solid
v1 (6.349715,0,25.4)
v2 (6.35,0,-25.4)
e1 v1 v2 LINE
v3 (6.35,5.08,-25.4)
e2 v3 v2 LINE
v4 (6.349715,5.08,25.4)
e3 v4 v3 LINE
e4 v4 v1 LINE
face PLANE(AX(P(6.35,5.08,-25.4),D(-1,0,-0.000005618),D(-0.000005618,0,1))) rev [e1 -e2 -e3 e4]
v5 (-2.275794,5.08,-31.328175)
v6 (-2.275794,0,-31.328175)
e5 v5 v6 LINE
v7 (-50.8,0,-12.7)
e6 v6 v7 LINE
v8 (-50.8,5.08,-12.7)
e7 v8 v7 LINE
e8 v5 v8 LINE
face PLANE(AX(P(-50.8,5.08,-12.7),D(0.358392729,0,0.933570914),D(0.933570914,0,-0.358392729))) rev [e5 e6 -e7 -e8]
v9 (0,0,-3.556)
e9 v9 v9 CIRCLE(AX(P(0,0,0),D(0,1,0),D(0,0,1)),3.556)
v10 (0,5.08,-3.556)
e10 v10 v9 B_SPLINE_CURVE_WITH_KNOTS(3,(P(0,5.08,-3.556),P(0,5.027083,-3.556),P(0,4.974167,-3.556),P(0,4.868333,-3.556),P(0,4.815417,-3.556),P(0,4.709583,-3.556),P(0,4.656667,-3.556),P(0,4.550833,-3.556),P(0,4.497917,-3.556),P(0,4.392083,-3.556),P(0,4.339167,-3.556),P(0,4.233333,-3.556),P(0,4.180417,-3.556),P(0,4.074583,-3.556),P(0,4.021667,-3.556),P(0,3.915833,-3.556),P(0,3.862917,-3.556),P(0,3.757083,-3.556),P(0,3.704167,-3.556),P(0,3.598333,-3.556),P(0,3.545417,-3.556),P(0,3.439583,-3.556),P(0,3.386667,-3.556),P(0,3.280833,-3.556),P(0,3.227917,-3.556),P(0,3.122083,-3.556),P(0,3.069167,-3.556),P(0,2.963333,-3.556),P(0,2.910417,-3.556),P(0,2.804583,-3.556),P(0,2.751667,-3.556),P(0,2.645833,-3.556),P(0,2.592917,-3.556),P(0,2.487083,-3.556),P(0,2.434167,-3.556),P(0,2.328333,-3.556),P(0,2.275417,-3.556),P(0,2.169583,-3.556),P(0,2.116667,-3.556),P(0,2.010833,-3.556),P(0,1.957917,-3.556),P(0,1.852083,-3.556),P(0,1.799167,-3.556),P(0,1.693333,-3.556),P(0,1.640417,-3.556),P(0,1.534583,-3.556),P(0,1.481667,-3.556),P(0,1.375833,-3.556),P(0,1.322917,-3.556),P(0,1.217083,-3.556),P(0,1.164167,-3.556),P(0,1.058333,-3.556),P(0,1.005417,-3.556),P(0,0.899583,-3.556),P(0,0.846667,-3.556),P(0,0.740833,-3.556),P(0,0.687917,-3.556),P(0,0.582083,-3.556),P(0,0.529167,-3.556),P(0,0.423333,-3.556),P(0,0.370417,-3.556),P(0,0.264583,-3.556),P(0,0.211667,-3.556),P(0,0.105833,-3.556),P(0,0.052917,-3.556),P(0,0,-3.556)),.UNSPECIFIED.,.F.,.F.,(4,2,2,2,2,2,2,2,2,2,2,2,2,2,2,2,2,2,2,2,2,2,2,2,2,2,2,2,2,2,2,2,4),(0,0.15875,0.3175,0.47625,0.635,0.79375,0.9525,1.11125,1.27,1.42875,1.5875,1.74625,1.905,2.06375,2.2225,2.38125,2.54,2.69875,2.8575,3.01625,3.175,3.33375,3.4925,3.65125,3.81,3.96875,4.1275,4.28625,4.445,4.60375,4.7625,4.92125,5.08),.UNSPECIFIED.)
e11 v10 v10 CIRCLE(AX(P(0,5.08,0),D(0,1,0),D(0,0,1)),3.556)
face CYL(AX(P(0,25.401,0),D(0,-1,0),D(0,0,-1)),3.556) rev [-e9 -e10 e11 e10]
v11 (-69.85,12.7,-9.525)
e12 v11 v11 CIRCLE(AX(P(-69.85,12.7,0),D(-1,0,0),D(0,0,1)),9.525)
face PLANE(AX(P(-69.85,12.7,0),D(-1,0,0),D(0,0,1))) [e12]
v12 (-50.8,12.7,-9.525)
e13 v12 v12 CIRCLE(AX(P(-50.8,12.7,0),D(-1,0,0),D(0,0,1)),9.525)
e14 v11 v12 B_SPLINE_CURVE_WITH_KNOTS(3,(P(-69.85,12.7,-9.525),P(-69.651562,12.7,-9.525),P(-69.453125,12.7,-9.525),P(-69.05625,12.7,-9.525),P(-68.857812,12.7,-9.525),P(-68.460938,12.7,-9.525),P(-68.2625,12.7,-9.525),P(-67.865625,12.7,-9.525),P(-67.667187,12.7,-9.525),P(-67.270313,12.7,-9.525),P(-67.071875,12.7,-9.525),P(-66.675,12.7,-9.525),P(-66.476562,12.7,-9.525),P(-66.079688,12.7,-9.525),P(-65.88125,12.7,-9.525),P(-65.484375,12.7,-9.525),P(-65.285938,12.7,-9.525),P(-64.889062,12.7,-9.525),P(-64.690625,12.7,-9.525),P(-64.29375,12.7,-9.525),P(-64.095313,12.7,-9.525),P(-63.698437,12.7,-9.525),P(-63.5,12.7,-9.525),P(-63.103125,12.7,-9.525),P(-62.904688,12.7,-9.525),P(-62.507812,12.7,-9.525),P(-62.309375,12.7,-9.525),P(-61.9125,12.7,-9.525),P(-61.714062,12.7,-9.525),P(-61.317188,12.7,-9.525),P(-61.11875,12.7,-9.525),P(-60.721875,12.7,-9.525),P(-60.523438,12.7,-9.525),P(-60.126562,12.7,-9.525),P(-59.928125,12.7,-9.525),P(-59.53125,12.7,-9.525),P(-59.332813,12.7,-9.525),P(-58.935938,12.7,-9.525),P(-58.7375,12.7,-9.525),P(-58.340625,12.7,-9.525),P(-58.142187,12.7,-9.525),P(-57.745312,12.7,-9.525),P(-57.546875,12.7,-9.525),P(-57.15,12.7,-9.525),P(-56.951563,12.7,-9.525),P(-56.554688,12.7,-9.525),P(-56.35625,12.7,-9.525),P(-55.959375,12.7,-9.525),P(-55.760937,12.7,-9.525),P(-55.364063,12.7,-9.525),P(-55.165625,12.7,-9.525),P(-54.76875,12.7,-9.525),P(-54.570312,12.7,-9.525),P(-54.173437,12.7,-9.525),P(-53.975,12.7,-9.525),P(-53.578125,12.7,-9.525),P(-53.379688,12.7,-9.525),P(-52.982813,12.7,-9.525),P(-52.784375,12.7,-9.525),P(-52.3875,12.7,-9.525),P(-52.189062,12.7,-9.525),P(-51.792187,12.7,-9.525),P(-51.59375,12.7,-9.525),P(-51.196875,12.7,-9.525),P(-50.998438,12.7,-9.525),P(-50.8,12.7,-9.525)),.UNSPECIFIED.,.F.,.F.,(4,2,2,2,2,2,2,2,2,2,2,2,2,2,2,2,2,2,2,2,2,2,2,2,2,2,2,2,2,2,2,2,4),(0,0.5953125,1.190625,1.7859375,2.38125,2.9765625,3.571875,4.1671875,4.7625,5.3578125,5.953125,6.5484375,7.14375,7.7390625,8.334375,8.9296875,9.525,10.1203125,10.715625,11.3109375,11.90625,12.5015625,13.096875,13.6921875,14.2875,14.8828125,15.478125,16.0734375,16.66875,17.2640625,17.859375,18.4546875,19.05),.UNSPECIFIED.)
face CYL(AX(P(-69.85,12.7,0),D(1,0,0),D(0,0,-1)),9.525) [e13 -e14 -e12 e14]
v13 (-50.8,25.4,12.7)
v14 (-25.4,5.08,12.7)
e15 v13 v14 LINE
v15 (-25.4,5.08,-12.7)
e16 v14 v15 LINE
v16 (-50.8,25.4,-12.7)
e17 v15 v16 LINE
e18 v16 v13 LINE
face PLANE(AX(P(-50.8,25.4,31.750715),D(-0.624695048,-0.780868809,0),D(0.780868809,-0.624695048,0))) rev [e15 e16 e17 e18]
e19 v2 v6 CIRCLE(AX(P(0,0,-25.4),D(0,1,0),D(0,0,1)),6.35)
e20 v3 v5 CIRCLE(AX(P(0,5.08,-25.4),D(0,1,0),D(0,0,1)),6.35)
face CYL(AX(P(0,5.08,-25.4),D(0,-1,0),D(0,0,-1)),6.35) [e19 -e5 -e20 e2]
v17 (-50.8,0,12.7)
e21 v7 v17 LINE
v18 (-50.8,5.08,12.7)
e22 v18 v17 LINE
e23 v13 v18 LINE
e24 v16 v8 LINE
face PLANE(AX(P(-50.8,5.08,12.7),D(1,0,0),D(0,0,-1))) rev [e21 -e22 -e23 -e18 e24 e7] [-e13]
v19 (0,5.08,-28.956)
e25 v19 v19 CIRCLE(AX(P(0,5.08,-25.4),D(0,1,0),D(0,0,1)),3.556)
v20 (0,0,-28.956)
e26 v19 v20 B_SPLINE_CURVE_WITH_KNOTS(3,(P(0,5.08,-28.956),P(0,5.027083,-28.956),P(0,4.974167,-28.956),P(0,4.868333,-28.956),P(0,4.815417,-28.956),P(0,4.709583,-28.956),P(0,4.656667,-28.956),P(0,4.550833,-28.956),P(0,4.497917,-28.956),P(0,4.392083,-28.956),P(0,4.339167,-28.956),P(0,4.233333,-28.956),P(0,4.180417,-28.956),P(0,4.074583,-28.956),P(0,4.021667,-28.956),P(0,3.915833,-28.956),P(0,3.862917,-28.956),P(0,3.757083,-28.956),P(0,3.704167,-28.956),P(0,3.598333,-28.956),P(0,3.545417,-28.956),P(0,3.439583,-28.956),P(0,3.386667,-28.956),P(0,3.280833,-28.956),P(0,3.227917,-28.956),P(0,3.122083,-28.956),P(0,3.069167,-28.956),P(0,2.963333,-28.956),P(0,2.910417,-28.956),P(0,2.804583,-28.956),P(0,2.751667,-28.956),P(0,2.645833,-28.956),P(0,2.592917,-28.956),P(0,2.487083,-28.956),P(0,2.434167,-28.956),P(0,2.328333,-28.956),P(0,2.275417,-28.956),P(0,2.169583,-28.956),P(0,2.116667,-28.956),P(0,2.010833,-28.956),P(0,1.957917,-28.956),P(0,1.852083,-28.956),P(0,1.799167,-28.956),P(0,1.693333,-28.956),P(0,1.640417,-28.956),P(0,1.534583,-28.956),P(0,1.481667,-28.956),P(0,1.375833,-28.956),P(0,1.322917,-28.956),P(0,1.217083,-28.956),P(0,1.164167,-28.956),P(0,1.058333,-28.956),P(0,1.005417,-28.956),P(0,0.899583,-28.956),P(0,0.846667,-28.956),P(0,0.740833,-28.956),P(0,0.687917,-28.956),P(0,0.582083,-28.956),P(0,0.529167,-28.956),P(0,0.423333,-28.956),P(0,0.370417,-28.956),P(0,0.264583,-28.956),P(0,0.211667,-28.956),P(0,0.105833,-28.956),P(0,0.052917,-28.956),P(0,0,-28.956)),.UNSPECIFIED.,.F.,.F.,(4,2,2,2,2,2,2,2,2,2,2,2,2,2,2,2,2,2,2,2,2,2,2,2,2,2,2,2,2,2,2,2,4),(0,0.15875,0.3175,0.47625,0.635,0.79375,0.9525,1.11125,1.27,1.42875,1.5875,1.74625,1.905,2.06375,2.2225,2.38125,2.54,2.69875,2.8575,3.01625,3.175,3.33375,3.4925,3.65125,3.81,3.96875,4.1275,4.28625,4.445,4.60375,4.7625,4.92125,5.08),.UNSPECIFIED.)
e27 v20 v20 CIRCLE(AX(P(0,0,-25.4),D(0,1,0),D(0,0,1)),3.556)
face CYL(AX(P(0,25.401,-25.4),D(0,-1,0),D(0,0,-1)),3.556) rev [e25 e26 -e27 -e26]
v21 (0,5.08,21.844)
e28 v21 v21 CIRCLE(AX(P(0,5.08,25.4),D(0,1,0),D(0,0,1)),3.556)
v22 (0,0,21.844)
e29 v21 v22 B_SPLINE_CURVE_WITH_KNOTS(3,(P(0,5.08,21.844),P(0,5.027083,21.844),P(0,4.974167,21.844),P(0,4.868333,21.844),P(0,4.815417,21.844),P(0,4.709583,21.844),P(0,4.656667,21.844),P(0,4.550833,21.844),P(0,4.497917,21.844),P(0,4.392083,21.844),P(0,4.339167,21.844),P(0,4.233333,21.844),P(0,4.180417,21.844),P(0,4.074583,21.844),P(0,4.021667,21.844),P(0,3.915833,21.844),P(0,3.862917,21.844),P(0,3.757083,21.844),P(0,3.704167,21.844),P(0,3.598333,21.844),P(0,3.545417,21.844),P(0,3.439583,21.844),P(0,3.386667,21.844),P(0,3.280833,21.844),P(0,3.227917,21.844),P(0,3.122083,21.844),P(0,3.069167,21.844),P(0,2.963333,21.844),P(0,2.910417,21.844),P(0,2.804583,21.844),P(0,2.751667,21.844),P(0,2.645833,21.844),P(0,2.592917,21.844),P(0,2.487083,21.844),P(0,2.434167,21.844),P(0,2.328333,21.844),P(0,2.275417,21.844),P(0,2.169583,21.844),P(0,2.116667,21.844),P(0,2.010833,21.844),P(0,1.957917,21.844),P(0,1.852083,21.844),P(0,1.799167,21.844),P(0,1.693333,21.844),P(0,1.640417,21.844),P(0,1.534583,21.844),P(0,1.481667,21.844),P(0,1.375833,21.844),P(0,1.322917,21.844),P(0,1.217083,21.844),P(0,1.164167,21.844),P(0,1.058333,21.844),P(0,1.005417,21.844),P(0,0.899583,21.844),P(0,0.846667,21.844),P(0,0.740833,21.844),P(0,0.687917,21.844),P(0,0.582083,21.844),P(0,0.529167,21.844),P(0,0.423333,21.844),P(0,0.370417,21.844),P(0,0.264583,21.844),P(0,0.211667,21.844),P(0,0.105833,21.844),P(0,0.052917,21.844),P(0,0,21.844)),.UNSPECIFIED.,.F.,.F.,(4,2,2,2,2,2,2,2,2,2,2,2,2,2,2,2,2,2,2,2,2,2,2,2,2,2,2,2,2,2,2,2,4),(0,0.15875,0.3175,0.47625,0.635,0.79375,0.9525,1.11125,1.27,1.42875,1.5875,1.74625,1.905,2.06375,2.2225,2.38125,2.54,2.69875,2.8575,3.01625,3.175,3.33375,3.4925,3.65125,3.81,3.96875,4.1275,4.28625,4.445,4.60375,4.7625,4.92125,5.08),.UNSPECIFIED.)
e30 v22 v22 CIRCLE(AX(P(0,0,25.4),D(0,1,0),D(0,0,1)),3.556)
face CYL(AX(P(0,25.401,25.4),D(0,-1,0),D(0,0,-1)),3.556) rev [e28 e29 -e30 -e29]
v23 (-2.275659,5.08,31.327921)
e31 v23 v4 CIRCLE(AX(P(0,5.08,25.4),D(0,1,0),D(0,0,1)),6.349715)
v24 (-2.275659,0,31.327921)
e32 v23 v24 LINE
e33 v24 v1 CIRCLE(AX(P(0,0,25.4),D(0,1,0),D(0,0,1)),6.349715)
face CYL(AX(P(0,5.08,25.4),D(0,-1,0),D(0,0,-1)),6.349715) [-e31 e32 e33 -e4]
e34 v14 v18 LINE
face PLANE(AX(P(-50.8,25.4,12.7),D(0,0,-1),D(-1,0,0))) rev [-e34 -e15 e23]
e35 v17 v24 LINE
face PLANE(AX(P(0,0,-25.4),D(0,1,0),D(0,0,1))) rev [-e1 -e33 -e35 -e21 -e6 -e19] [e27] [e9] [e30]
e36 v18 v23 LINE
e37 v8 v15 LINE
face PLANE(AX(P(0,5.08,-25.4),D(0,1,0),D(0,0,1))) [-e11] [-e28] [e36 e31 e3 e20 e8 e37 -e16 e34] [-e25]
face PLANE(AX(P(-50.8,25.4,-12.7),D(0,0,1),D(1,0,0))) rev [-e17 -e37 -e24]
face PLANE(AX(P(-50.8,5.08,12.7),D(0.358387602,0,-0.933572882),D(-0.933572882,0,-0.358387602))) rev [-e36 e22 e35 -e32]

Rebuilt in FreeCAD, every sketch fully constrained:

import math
import FreeCAD as App
import Part
import Sketcher
from FreeCAD import Vector
Q = App.Units.Quantity

doc = App.newDocument("Part")
params = doc.addObject("Spreadsheet::Sheet", "Params")
for row, (alias, value) in enumerate([
    ("sketch1_width", "1 in"),
    ("pad1_length", "1 in"),
    ("sketch2_width", "1 in"),
    ("sketch2_height", "0.8 in"),
    ("pocket1_length", "1 in"),
    ("sketch3_height", "1 in"),
    ("sketch3_radius", "0.25 in"),
    ("sketch3_length", "2 in"),
    ("pad2_length", "0.2 in"),
    ("sketch4_diameter", "0.28 in"),
    ("pocket2_length", "0.2 in"),
    ("sketch5_diameter", "0.28 in"),
    ("pocket3_length", "0.2 in"),
    ("sketch6_diameter", "0.75 in"),
    ("pad3_length", "0.75 in"),
    ("sketch7_diameter", "0.28 in"),
], start=1):
    params.set(f"A{row}", alias)
    params.set(f"B{row}", "=" + value)
    params.setAlias(f"B{row}", alias)

body = doc.addObject("PartDesign::Body", "Body")

# Sketch on XZ plane
sketch1 = body.newObject("Sketcher::SketchObject", "Sketch")
sketch1.AttachmentSupport = (doc.getObject("XZ_Plane"), [""])
sketch1.MapMode = "FlatFace"
sketch1.addGeometry([
    Part.LineSegment(Vector(-50.8, -12.7, 0), Vector(-50.8, 12.7, 0)),
    Part.LineSegment(Vector(-50.8, 12.7, 0), Vector(-25.4, 12.7, 0)),
    Part.LineSegment(Vector(-25.4, 12.7, 0), Vector(-25.4, -12.7, 0)),
    Part.LineSegment(Vector(-25.4, -12.7, 0), Vector(-50.8, -12.7, 0)),
], False)
sketch1.addConstraint([
    Sketcher.Constraint("Coincident", 0, 2, 1, 1),
    Sketcher.Constraint("Coincident", 1, 2, 2, 1),
    Sketcher.Constraint("Coincident", 2, 2, 3, 1),
    Sketcher.Constraint("Coincident", 3, 2, 0, 1),
    Sketcher.Constraint("Vertical", 0),
    Sketcher.Constraint("Horizontal", 1),
    Sketcher.Constraint("Vertical", 2),
    Sketcher.Constraint("Horizontal", 3),
    Sketcher.Constraint("Equal", 3, 0),
    Sketcher.Constraint("DistanceX", 1, 1, 1, 2, Q("1 in")),
    Sketcher.Constraint("DistanceX", 0, 2, -1, 1, Q("2 in")),
    Sketcher.Constraint("DistanceY", -1, 1, 0, 2, Q("0.5 in")),
])
sketch1.setExpression("Constraints[9]", "Params.sketch1_width")
pad1 = body.newObject("PartDesign::Pad", "Pad")
pad1.Profile = sketch1
pad1.setExpression("Length", "Params.pad1_length")
pad1.Reversed = True

# Sketch on XY plane
sketch2 = body.newObject("Sketcher::SketchObject", "Sketch001")
sketch2.AttachmentSupport = (doc.getObject("XY_Plane"), [""])
sketch2.MapMode = "FlatFace"
sketch2.AttachmentOffset = App.Placement(Vector(0, 0, -0.5 * 25.4), App.Rotation())
sketch2.addGeometry([
    Part.LineSegment(Vector(-25.4, 5.08, 0), Vector(-50.8, 25.4, 0)),
    Part.LineSegment(Vector(-50.8, 25.4, 0), Vector(-25.4, 25.4, 0)),
    Part.LineSegment(Vector(-25.4, 25.4, 0), Vector(-25.4, 5.08, 0)),
], False)
sketch2.addConstraint([
    Sketcher.Constraint("Coincident", 0, 2, 1, 1),
    Sketcher.Constraint("Coincident", 1, 2, 2, 1),
    Sketcher.Constraint("Coincident", 2, 2, 0, 1),
    Sketcher.Constraint("Horizontal", 1),
    Sketcher.Constraint("Vertical", 2),
    Sketcher.Constraint("DistanceX", 1, 1, 1, 2, Q("1 in")),
    Sketcher.Constraint("DistanceY", 2, 2, 2, 1, Q("0.8 in")),
    Sketcher.Constraint("DistanceX", 0, 2, -1, 1, Q("2 in")),
    Sketcher.Constraint("DistanceY", -1, 1, 0, 2, Q("1 in")),
])
sketch2.setExpression("Constraints[5]", "Params.sketch2_width")
sketch2.setExpression("Constraints[6]", "Params.sketch2_height")
pocket1 = body.newObject("PartDesign::Pocket", "Pocket")
pocket1.Profile = sketch2
pocket1.setExpression("Length", "Params.pocket1_length")
pocket1.Reversed = True
body2 = doc.addObject("PartDesign::Body", "Body001")

# Sketch on XZ plane
sketch3 = body2.newObject("Sketcher::SketchObject", "Sketch002")
sketch3.AttachmentSupport = (doc.getObject("XZ_Plane001"), [""])
sketch3.MapMode = "FlatFace"
sketch3.addGeometry([
    Part.LineSegment(Vector(-50.8, 12.7, 0), Vector(-2.275659, 31.327921, 0)),  # 0
    Part.ArcOfCircle(Part.Circle(Vector(0, 25.4, 0), Vector(0, 0, 1), 6.349715), math.radians(0), math.radians(111.001206)),  # 1
    Part.LineSegment(Vector(6.349715, 25.4, 0), Vector(6.35, -25.4, 0)),  # 2
    Part.ArcOfCircle(Part.Circle(Vector(0, -25.4, 0), Vector(0, 0, 1), 6.35), math.radians(-111.001521), math.radians(0)),  # 3
    Part.LineSegment(Vector(-2.275794, -31.328175, 0), Vector(-50.8, -12.7, 0)),  # 4
    Part.LineSegment(Vector(-50.8, -12.7, 0), Vector(-50.8, 12.7, 0)),  # 5
], False)
sketch3.addConstraint([
    Sketcher.Constraint("Tangent", 0, 2, 1, 2),
    Sketcher.Constraint("Coincident", 1, 1, 2, 1),
    Sketcher.Constraint("Coincident", 2, 2, 3, 2),
    Sketcher.Constraint("Tangent", 3, 1, 4, 1),
    Sketcher.Constraint("Coincident", 4, 2, 5, 1),
    Sketcher.Constraint("Coincident", 5, 2, 0, 1),
    Sketcher.Constraint("Vertical", 5),
    Sketcher.Constraint("Symmetric", 1, 3, 3, 3, -1, 1),
    Sketcher.Constraint("PointOnObject", 1, 3, -2),
    Sketcher.Constraint("Horizontal", 3, 3, 2, 2),
    Sketcher.Constraint("DistanceY", 5, 1, 5, 2, Q("1 in")),
    Sketcher.Constraint("Radius", 3, Q("0.25 in")),
    Sketcher.Constraint("Distance", 2, Q("2 in")),
    Sketcher.Constraint("DistanceY", -1, 1, 1, 3, Q("1 in")),
    Sketcher.Constraint("DistanceX", 4, 2, -1, 1, Q("2 in")),
    Sketcher.Constraint("DistanceY", 4, 2, -1, 1, Q("0.5 in")),
    Sketcher.Constraint("Radius", 1, 6.349715),
])
sketch3.setExpression("Constraints[10]", "Params.sketch3_height")
sketch3.setExpression("Constraints[11]", "Params.sketch3_radius")
sketch3.setExpression("Constraints[12]", "Params.sketch3_length")
pad2 = body2.newObject("PartDesign::Pad", "Pad001")
pad2.Profile = sketch3
pad2.setExpression("Length", "Params.pad2_length")
pad2.Reversed = True

# Sketch on XZ plane
sketch4 = body2.newObject("Sketcher::SketchObject", "Sketch003")
sketch4.AttachmentSupport = (doc.getObject("XZ_Plane001"), [""])
sketch4.MapMode = "FlatFace"
sketch4.addGeometry(Part.Circle(Vector(0, 25.4, 0), Vector(0, 0, 1), 3.556), False)
sketch4.addConstraint([
    Sketcher.Constraint("PointOnObject", 0, 3, -2),
    Sketcher.Constraint("Diameter", 0, Q("0.28 in")),
    Sketcher.Constraint("DistanceY", -1, 1, 0, 3, Q("1 in")),
])
sketch4.setExpression("Constraints[1]", "Params.sketch4_diameter")
pocket2 = body2.newObject("PartDesign::Pocket", "Pocket001")
pocket2.Profile = sketch4
pocket2.setExpression("Length", "Params.pocket2_length")

# Sketch on XZ plane
sketch5 = body2.newObject("Sketcher::SketchObject", "Sketch004")
sketch5.AttachmentSupport = (doc.getObject("XZ_Plane001"), [""])
sketch5.MapMode = "FlatFace"
sketch5.addGeometry(Part.Circle(Vector(0, -25.4, 0), Vector(0, 0, 1), 3.556), False)
sketch5.addConstraint([
    Sketcher.Constraint("PointOnObject", 0, 3, -2),
    Sketcher.Constraint("Diameter", 0, Q("0.28 in")),
    Sketcher.Constraint("DistanceY", 0, 3, -1, 1, Q("1 in")),
])
sketch5.setExpression("Constraints[1]", "Params.sketch5_diameter")
pocket3 = body2.newObject("PartDesign::Pocket", "Pocket002")
pocket3.Profile = sketch5
pocket3.setExpression("Length", "Params.pocket3_length")
doc.recompute()

boolean = body.newObject("PartDesign::Boolean", "Boolean")
boolean.Type = "Fuse"
boolean.addObjects([body2])

# Sketch on YZ plane
sketch6 = body.newObject("Sketcher::SketchObject", "Sketch005")
sketch6.AttachmentSupport = (doc.getObject("YZ_Plane"), [""])
sketch6.MapMode = "FlatFace"
sketch6.AttachmentOffset = App.Placement(Vector(0, 0, -2 * 25.4), App.Rotation())
sketch6.addGeometry(Part.Circle(Vector(12.7, 0, 0), Vector(0, 0, 1), 9.525), False)
sketch6.addConstraint([
    Sketcher.Constraint("PointOnObject", 0, 3, -1),
    Sketcher.Constraint("Diameter", 0, Q("0.75 in")),
    Sketcher.Constraint("DistanceX", -1, 1, 0, 3, Q("0.5 in")),
])
sketch6.setExpression("Constraints[1]", "Params.sketch6_diameter")
pad3 = body.newObject("PartDesign::Pad", "Pad002")
pad3.Profile = sketch6
pad3.setExpression("Length", "Params.pad3_length")
pad3.Reversed = True

# Sketch on XZ plane
sketch7 = body.newObject("Sketcher::SketchObject", "Sketch006")
sketch7.AttachmentSupport = (doc.getObject("XZ_Plane"), [""])
sketch7.MapMode = "FlatFace"
sketch7.addGeometry(Part.Circle(Vector(0, 0, 0), Vector(0, 0, 1), 3.556), False)
sketch7.addConstraint([
    Sketcher.Constraint("Coincident", 0, 3, -1, 1),
    Sketcher.Constraint("Diameter", 0, Q("0.28 in")),
])
sketch7.setExpression("Constraints[1]", "Params.sketch7_diameter")
pocket4 = body.newObject("PartDesign::Pocket", "Pocket003")
pocket4.Profile = sketch7
pocket4.Type = "UpToFirst"

doc.recompute()
